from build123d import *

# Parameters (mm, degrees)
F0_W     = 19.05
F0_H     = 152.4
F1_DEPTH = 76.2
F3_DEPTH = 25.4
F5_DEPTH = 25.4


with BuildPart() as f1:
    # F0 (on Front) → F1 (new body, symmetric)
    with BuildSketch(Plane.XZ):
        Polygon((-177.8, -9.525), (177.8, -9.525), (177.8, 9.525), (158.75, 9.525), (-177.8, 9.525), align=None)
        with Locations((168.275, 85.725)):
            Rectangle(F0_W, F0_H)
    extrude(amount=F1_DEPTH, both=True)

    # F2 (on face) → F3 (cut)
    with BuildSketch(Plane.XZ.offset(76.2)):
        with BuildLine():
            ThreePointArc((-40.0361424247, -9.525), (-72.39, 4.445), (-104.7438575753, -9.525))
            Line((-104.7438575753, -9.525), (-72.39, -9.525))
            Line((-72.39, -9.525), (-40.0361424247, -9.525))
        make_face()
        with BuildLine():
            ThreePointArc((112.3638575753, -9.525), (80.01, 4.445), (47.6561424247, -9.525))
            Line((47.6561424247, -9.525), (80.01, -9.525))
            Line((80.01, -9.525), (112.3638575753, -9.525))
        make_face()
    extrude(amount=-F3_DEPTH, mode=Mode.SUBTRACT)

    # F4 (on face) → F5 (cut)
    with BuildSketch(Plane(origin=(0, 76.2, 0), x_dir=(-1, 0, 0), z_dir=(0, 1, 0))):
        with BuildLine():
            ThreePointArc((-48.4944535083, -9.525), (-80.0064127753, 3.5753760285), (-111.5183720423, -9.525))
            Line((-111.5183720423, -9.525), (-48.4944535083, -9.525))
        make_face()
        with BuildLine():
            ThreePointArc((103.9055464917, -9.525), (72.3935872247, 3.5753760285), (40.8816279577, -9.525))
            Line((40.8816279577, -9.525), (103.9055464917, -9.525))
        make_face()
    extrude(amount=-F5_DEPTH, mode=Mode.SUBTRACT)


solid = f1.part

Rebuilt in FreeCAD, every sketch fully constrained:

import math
import FreeCAD as App
import Part
import Sketcher

V = App.Vector
Q = App.Units.Quantity

doc = App.newDocument("Part")
body = doc.addObject("PartDesign::Body", "Body")

# Sketch on XZ plane
sketch1 = body.newObject("Sketcher::SketchObject", "Sketch")
sketch1.AttachmentSupport = (doc.getObject("XZ_Plane"), [""])
sketch1.MapMode = "FlatFace"
sketch1.addGeometry(Part.LineSegment(V(-178, -10, 0), V(178, -10, 0)), False)
sketch1.addGeometry(Part.LineSegment(V(178, -10, 0), V(178, 162, 0)), False)
sketch1.addGeometry(Part.LineSegment(V(178, 162, 0), V(159, 162, 0)), False)
sketch1.addGeometry(Part.LineSegment(V(159, 162, 0), V(159, 10, 0)), False)
sketch1.addGeometry(Part.LineSegment(V(159, 10, 0), V(-178, 10, 0)), False)
sketch1.addGeometry(Part.LineSegment(V(-178, 10, 0), V(-178, -10, 0)), False)
sketch1.addConstraint(Sketcher.Constraint("Coincident", 0, 2, 1, 1))
sketch1.addConstraint(Sketcher.Constraint("Coincident", 1, 2, 2, 1))
sketch1.addConstraint(Sketcher.Constraint("Coincident", 2, 2, 3, 1))
sketch1.addConstraint(Sketcher.Constraint("Coincident", 3, 2, 4, 1))
sketch1.addConstraint(Sketcher.Constraint("Coincident", 4, 2, 5, 1))
sketch1.addConstraint(Sketcher.Constraint("Coincident", 5, 2, 0, 1))
sketch1.addConstraint(Sketcher.Constraint("Horizontal", 0))
sketch1.addConstraint(Sketcher.Constraint("Vertical", 1))
sketch1.addConstraint(Sketcher.Constraint("Horizontal", 2))
sketch1.addConstraint(Sketcher.Constraint("Vertical", 3))
sketch1.addConstraint(Sketcher.Constraint("Horizontal", 4))
sketch1.addConstraint(Sketcher.Constraint("Vertical", 5))
sketch1.addConstraint(Sketcher.Constraint("Symmetric", 0, 2, 4, 2, -1, 1))
sketch1.addConstraint(Sketcher.Constraint("Equal", 2, 5))
sketch1.addConstraint(Sketcher.Constraint("DistanceX", 0, 1, 0, 2, Q("14 in")))
sketch1.addConstraint(Sketcher.Constraint("DistanceY", 3, 2, 3, 1, Q("6 in")))
sketch1.addConstraint(Sketcher.Constraint("DistanceX", 2, 2, 2, 1, Q("0.75 in")))
pad1 = body.newObject("PartDesign::Pad", "Pad")
pad1.Profile = sketch1
pad1.Length = Q("6 in")
pad1.Midplane = True

# Sketch on XZ plane
sketch2 = body.newObject("Sketcher::SketchObject", "Sketch001")
sketch2.AttachmentSupport = (doc.getObject("XZ_Plane"), [""])
sketch2.MapMode = "FlatFace"
sketch2.AttachmentOffset = App.Placement(V(0, 0, 3 * 25.4), App.Rotation())
sketch2.addGeometry(Part.ArcOfCircle(Part.Circle(V(-72, -40, 0), V(0, 0, 1), 44), math.radians(43), math.radians(137)), False)
sketch2.addGeometry(Part.LineSegment(V(-105, -10, 0), V(-40, -10, 0)), False)
sketch2.addGeometry(Part.ArcOfCircle(Part.Circle(V(80, -40, 0), V(0, 0, 1), 44), math.radians(43), math.radians(137)), False)
sketch2.addGeometry(Part.LineSegment(V(48, -10, 0), V(112, -10, 0)), False)
sketch2.addConstraint(Sketcher.Constraint("Coincident", 0, 1, 1, 2))
sketch2.addConstraint(Sketcher.Constraint("Coincident", 1, 1, 0, 2))
sketch2.addConstraint(Sketcher.Constraint("Coincident", 2, 1, 3, 2))
sketch2.addConstraint(Sketcher.Constraint("Coincident", 3, 1, 2, 2))
sketch2.addConstraint(Sketcher.Constraint("Horizontal", 1))
sketch2.addConstraint(Sketcher.Constraint("Horizontal", 3))
sketch2.addConstraint(Sketcher.Constraint("Equal", 0, 2))
sketch2.addConstraint(Sketcher.Constraint("Horizontal", 0, 3, 2, 3))
sketch2.addConstraint(Sketcher.Constraint("Horizontal", 1, 1, 2, 1))
sketch2.addConstraint(Sketcher.Constraint("Radius", 0, Q("1.75 in")))
sketch2.addConstraint(Sketcher.Constraint("DistanceX", 0, 3, 2, 3, Q("6 in")))
sketch2.addConstraint(Sketcher.Constraint("DistanceY", 0, 3, 0, 1, Q("1.2 in")))
sketch2.addConstraint(Sketcher.Constraint("DistanceX", 0, 3, -1, 1, Q("2.85 in")))
sketch2.addConstraint(Sketcher.Constraint("DistanceY", 0, 3, -1, 1, Q("1.575 in")))
pocket1 = body.newObject("PartDesign::Pocket", "Pocket")
pocket1.Profile = sketch2
pocket1.Length = Q("1 in")

# Sketch on XZ plane
sketch3 = body.newObject("Sketcher::SketchObject", "Sketch002")
sketch3.AttachmentSupport = (doc.getObject("XZ_Plane"), [""])
sketch3.MapMode = "FlatFace"
sketch3.AttachmentOffset = App.Placement(V(0, 0, -3 * 25.4), App.Rotation())
sketch3.addGeometry(Part.ArcOfCircle(Part.Circle(V(80, -41, 0), V(0, 0, 1), 44), math.radians(45), math.radians(135)), False)
sketch3.addGeometry(Part.LineSegment(V(112, -10, 0), V(48, -10, 0)), False)
sketch3.addGeometry(Part.ArcOfCircle(Part.Circle(V(-72, -41, 0), V(0, 0, 1), 44), math.radians(45), math.radians(135)), False)
sketch3.addGeometry(Part.LineSegment(V(-41, -10, 0), V(-104, -10, 0)), False)
sketch3.addConstraint(Sketcher.Constraint("Coincident", 0, 1, 1, 1))
sketch3.addConstraint(Sketcher.Constraint("Coincident", 1, 2, 0, 2))
sketch3.addConstraint(Sketcher.Constraint("Coincident", 2, 1, 3, 1))
sketch3.addConstraint(Sketcher.Constraint("Coincident", 3, 2, 2, 2))
sketch3.addConstraint(Sketcher.Constraint("Horizontal", 1))
sketch3.addConstraint(Sketcher.Constraint("Horizontal", 3))
sketch3.addConstraint(Sketcher.Constraint("Equal", 0, 2))
sketch3.addConstraint(Sketcher.Constraint("Horizontal", 0, 3, 2, 3))
sketch3.addConstraint(Sketcher.Constraint("Horizontal", 1, 2, 2, 1))
sketch3.addConstraint(Sketcher.Constraint("Radius", 0, Q("1.75 in")))
sketch3.addConstraint(Sketcher.Constraint("DistanceX", 2, 3, 0, 3, Q("6 in")))
sketch3.addConstraint(Sketcher.Constraint("DistanceY", 0, 1, -1, 1, Q("0.375 in")))
sketch3.addConstraint(Sketcher.Constraint("DistanceX", 1, 2, 1, 1, 63.023919))
sketch3.addConstraint(Sketcher.Constraint("DistanceX", -1, 1, 0, 3, 80.006413))
pocket2 = body.newObject("PartDesign::Pocket", "Pocket001")
pocket2.Profile = sketch3
pocket2.Length = Q("1 in")
pocket2.Reversed = True

doc.recompute()
